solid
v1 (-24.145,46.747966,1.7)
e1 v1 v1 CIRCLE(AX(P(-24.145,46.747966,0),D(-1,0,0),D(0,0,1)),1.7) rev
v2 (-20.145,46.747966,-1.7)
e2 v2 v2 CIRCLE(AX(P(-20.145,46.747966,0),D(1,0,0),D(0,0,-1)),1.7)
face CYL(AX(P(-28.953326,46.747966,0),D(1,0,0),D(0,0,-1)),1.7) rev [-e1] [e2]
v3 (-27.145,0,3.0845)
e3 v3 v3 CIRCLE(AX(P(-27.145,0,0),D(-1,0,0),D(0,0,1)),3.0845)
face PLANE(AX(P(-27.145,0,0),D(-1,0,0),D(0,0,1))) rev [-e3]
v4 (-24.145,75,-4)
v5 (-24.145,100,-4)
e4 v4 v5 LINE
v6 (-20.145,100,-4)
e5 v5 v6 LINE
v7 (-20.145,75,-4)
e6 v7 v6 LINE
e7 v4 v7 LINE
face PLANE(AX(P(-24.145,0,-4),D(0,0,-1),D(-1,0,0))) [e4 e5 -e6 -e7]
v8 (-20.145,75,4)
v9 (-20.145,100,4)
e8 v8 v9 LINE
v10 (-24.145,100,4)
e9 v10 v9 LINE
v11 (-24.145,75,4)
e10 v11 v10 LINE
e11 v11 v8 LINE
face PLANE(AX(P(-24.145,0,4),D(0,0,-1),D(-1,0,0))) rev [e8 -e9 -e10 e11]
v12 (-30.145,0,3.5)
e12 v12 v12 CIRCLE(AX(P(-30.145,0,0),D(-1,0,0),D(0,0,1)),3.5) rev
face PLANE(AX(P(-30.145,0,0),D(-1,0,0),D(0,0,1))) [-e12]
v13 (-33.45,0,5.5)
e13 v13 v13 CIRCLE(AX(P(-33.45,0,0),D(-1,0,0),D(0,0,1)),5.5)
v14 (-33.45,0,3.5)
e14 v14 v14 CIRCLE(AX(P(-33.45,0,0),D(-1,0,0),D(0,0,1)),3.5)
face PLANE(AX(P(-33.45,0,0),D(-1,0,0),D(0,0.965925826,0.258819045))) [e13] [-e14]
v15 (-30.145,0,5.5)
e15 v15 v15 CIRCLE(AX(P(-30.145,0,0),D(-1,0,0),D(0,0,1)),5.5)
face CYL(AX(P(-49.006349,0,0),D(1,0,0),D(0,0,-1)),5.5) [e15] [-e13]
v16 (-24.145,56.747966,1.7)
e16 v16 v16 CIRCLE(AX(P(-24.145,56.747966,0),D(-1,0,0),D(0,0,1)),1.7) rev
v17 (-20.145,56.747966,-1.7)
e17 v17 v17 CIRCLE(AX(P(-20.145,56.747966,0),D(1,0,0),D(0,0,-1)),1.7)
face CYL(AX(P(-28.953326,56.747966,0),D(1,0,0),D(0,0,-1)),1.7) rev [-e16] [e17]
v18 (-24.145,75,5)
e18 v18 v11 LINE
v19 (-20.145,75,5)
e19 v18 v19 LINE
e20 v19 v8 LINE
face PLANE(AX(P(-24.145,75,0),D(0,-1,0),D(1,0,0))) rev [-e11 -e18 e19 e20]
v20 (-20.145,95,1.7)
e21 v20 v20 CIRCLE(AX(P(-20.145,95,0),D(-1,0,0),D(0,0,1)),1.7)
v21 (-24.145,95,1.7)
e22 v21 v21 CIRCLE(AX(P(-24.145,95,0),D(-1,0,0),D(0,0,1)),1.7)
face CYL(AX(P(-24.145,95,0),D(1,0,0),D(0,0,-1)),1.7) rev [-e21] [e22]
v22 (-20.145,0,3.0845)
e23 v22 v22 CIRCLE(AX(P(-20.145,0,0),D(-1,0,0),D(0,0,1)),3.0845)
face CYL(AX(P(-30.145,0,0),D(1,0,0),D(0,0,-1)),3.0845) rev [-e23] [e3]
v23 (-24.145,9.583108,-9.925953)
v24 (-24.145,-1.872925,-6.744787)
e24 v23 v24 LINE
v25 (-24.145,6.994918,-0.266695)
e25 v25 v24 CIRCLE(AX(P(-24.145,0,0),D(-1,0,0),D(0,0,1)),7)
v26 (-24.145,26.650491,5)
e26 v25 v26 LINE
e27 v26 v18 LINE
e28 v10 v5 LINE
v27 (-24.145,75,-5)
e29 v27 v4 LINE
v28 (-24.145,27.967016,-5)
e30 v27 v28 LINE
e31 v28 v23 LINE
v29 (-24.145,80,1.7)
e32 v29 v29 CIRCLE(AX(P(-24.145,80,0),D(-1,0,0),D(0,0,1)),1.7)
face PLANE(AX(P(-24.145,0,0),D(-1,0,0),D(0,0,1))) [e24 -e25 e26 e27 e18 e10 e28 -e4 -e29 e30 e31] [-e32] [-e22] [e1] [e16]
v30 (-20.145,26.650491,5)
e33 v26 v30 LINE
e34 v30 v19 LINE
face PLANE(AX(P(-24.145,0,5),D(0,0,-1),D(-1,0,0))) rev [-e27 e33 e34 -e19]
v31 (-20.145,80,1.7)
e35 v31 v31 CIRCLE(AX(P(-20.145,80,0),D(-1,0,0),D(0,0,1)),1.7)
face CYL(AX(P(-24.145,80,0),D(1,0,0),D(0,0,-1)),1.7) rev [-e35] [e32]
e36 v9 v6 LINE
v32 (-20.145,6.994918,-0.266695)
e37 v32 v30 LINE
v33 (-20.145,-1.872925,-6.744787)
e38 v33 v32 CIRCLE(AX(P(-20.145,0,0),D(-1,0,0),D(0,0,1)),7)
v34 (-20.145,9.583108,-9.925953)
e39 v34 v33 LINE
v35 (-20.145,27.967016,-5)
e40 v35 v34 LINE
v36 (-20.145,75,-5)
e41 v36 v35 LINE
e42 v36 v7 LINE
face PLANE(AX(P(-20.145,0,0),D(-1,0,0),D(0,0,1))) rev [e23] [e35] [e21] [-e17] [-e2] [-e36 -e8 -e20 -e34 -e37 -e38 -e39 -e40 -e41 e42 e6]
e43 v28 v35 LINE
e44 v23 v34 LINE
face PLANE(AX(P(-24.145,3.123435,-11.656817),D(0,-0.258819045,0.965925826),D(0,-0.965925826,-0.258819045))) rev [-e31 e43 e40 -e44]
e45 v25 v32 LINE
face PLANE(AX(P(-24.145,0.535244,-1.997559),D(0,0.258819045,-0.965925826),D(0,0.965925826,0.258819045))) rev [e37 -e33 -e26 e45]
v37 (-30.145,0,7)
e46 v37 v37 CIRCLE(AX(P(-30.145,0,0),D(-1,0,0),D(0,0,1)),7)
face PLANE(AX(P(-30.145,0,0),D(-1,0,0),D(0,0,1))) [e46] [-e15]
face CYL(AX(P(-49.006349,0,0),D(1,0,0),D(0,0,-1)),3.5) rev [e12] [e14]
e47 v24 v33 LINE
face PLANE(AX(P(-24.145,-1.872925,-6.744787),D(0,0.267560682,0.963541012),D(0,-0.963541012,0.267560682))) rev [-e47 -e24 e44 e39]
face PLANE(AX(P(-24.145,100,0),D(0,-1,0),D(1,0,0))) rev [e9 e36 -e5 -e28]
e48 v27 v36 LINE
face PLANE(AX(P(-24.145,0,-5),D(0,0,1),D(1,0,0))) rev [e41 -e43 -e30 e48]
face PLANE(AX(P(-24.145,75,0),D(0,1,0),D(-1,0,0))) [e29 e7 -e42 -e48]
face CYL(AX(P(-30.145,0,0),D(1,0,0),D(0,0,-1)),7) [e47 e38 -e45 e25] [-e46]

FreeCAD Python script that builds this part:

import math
import FreeCAD as App
import Part
import Sketcher
from FreeCAD import Vector
Q = App.Units.Quantity

doc = App.newDocument("Part")
body = doc.addObject("PartDesign::Body", "Body")

# Sketch on YZ plane
sketch1 = doc.addObject("Sketcher::SketchObject", "Sketch")
body.addObject(sketch1)
sketch1.AttachmentSupport = (doc.YZ_Plane, [""])
sketch1.MapMode = "FlatFace"
sketch1.AttachmentOffset = App.Placement(Vector(0, 0, -20.145), App.Rotation())
sketch1.addGeometry([
    Part.Circle(Vector(0, 0, 0), Vector(0, 0, 1), 7),
    Part.Circle(Vector(0, 0, 0), Vector(0, 0, 1), 3.1),
], False)
sketch1.addConstraint([
    Sketcher.Constraint("Coincident", 0, 3, -1, 1),
    Sketcher.Constraint("Coincident", 1, 3, -1, 1),
    Sketcher.Constraint("Diameter", 0, Q("14 mm")),
    Sketcher.Constraint("Diameter", 1, Q("6.169 mm")),
])
pad1 = doc.addObject("PartDesign::Pad", "Pad")
body.addObject(pad1)
pad1.Profile = sketch1
pad1.Length = 10
pad1.Reversed = True

# Sketch on YZ plane
sketch2 = doc.addObject("Sketcher::SketchObject", "Sketch001")
body.addObject(sketch2)
sketch2.AttachmentSupport = (doc.YZ_Plane, [""])
sketch2.MapMode = "FlatFace"
sketch2.AttachmentOffset = App.Placement(Vector(0, 0, -27.145), App.Rotation())
sketch2.addGeometry(Part.Circle(Vector(0, 0, 0), Vector(0, 0, 1), 7), False)
sketch2.addConstraint([
    Sketcher.Constraint("Coincident", 0, 3, -1, 1),
    Sketcher.Constraint("Diameter", 0, Q("14 mm")),
])
pad2 = doc.addObject("PartDesign::Pad", "Pad001")
body.addObject(pad2)
pad2.Profile = sketch2
pad2.Length = 3
pad2.Reversed = True

# Sketch on YZ plane
sketch3 = doc.addObject("Sketcher::SketchObject", "Sketch002")
body.addObject(sketch3)
sketch3.AttachmentSupport = (doc.YZ_Plane, [""])
sketch3.MapMode = "FlatFace"
sketch3.AttachmentOffset = App.Placement(Vector(0, 0, -20.145), App.Rotation())
sketch3.addGeometry([
    Part.LineSegment(Vector(75, -5, 0), Vector(28, -5, 0)),  # 0
    Part.LineSegment(Vector(28, -5, 0), Vector(9.6, -9.9, 0)),  # 1
    Part.LineSegment(Vector(9.6, -9.9, 0), Vector(-1.9, -6.7, 0)),  # 2
    Part.ArcOfCircle(Part.Circle(Vector(0, 0, 0), Vector(0, 0, 1), 7), math.radians(-106), math.radians(-2)),  # 3
    Part.LineSegment(Vector(7, -0.3, 0), Vector(26.7, 5, 0)),  # 4
    Part.LineSegment(Vector(26.7, 5, 0), Vector(75, 5, 0)),  # 5
    Part.LineSegment(Vector(75, 5, 0), Vector(75, 4, 0)),  # 6
    Part.LineSegment(Vector(75, 4, 0), Vector(100, 4, 0)),  # 7
    Part.LineSegment(Vector(100, 4, 0), Vector(100, -4, 0)),  # 8
    Part.LineSegment(Vector(100, -4, 0), Vector(75, -4, 0)),  # 9
    Part.LineSegment(Vector(75, -4, 0), Vector(75, -5, 0)),  # 10
    Part.Circle(Vector(80, 0, 0), Vector(0, 0, 1), 1.7),  # 11
    Part.Circle(Vector(95, 0, 0), Vector(0, 0, 1), 1.7),  # 12
], False)
sketch3.addConstraint([
    Sketcher.Constraint("Coincident", 0, 2, 1, 1),
    Sketcher.Constraint("Coincident", 1, 2, 2, 1),
    Sketcher.Constraint("Tangent", 2, 2, 3, 1),
    Sketcher.Constraint("Coincident", 3, 2, 4, 1),
    Sketcher.Constraint("Coincident", 4, 2, 5, 1),
    Sketcher.Constraint("Coincident", 5, 2, 6, 1),
    Sketcher.Constraint("Coincident", 6, 2, 7, 1),
    Sketcher.Constraint("Coincident", 7, 2, 8, 1),
    Sketcher.Constraint("Coincident", 8, 2, 9, 1),
    Sketcher.Constraint("Coincident", 9, 2, 10, 1),
    Sketcher.Constraint("Coincident", 10, 2, 0, 1),
    Sketcher.Constraint("Horizontal", 0),
    Sketcher.Constraint("Horizontal", 5),
    Sketcher.Constraint("Vertical", 6),
    Sketcher.Constraint("Horizontal", 7),
    Sketcher.Constraint("Vertical", 8),
    Sketcher.Constraint("Horizontal", 9),
    Sketcher.Constraint("Vertical", 10),
    Sketcher.Constraint("Coincident", 3, 3, -1, 1),
    Sketcher.Constraint("Equal", 11, 12),
    Sketcher.Constraint("Symmetric", 6, 2, 9, 2, -1),
    Sketcher.Constraint("PointOnObject", 11, 3, -1),
    Sketcher.Constraint("PointOnObject", 12, 3, -1),
    Sketcher.Constraint("Parallel", 1, 4),
    Sketcher.Constraint("Equal", 6, 10),
    Sketcher.Constraint("Radius", 3, Q("7 mm")),
    Sketcher.Constraint("Diameter", 11, Q("3.4 mm")),
    Sketcher.Constraint("DistanceX", 7, 1, 7, 2, Q("25 mm")),
    Sketcher.Constraint("DistanceY", 6, 2, 6, 1, Q("1 mm")),
    Sketcher.Constraint("DistanceY", 8, 2, 8, 1, Q("8 mm")),
    Sketcher.Constraint("Angle", 1, Q("-165 deg")),
    Sketcher.Constraint("DistanceX", -1, 1, 11, 3, Q("80 mm")),
    Sketcher.Constraint("DistanceX", -1, 1, 12, 3, Q("95 mm")),
    Sketcher.Constraint("DistanceX", -1, 1, 5, 2, Q("75 mm")),
    Sketcher.Constraint("DistanceX", 5, 1, 5, 2, Q("48.349509 mm")),
    Sketcher.Constraint("Distance", 1, Q("19.032422 mm")),
    Sketcher.Constraint("DistanceX", 0, 2, 0, 1, Q("47.032984 mm")),
])
pad3 = doc.addObject("PartDesign::Pad", "Pad002")
body.addObject(pad3)
pad3.Profile = sketch3
pad3.Length = 4
pad3.Reversed = True

# Sketch on YZ plane
sketch4 = doc.addObject("Sketcher::SketchObject", "Sketch003")
body.addObject(sketch4)
sketch4.AttachmentSupport = (doc.YZ_Plane, [""])
sketch4.MapMode = "FlatFace"
sketch4.AttachmentOffset = App.Placement(Vector(0, 0, -30.145), App.Rotation())
sketch4.addGeometry([
    Part.Circle(Vector(0, 0, 0), Vector(0, 0, 1), 5.5),
    Part.Circle(Vector(0, 0, 0), Vector(0, 0, 1), 3.5),
], False)
sketch4.addConstraint([
    Sketcher.Constraint("Coincident", 0, 3, -1, 1),
    Sketcher.Constraint("Coincident", 1, 3, -1, 1),
    Sketcher.Constraint("Diameter", 0, Q("11 mm")),
    Sketcher.Constraint("Diameter", 1, Q("7 mm")),
])
pad4 = doc.addObject("PartDesign::Pad", "Pad003")
body.addObject(pad4)
pad4.Profile = sketch4
pad4.Length = 3.305
pad4.Reversed = True

# Sketch on YZ plane
sketch5 = doc.addObject("Sketcher::SketchObject", "Sketch004")
body.addObject(sketch5)
sketch5.AttachmentSupport = (doc.YZ_Plane, [""])
sketch5.MapMode = "FlatFace"
sketch5.AttachmentOffset = App.Placement(Vector(0, 0, -20.145), App.Rotation())
sketch5.addGeometry([
    Part.Circle(Vector(46.7, 0, 0), Vector(0, 0, 1), 1.7),
    Part.Circle(Vector(56.7, 0, 0), Vector(0, 0, 1), 1.7),
], False)
sketch5.addConstraint([
    Sketcher.Constraint("Equal", 0, 1),
    Sketcher.Constraint("PointOnObject", 0, 3, -1),
    Sketcher.Constraint("PointOnObject", 1, 3, -1),
    Sketcher.Constraint("Diameter", 0, Q("3.4 mm")),
    Sketcher.Constraint("DistanceX", 0, 3, 1, 3, Q("10 mm")),
    Sketcher.Constraint("DistanceX", -1, 1, 0, 3, Q("46.747966 mm")),
])
pocket1 = doc.addObject("PartDesign::Pocket", "Pocket")
body.addObject(pocket1)
pocket1.Profile = sketch5
pocket1.Length = 4

doc.recompute()
